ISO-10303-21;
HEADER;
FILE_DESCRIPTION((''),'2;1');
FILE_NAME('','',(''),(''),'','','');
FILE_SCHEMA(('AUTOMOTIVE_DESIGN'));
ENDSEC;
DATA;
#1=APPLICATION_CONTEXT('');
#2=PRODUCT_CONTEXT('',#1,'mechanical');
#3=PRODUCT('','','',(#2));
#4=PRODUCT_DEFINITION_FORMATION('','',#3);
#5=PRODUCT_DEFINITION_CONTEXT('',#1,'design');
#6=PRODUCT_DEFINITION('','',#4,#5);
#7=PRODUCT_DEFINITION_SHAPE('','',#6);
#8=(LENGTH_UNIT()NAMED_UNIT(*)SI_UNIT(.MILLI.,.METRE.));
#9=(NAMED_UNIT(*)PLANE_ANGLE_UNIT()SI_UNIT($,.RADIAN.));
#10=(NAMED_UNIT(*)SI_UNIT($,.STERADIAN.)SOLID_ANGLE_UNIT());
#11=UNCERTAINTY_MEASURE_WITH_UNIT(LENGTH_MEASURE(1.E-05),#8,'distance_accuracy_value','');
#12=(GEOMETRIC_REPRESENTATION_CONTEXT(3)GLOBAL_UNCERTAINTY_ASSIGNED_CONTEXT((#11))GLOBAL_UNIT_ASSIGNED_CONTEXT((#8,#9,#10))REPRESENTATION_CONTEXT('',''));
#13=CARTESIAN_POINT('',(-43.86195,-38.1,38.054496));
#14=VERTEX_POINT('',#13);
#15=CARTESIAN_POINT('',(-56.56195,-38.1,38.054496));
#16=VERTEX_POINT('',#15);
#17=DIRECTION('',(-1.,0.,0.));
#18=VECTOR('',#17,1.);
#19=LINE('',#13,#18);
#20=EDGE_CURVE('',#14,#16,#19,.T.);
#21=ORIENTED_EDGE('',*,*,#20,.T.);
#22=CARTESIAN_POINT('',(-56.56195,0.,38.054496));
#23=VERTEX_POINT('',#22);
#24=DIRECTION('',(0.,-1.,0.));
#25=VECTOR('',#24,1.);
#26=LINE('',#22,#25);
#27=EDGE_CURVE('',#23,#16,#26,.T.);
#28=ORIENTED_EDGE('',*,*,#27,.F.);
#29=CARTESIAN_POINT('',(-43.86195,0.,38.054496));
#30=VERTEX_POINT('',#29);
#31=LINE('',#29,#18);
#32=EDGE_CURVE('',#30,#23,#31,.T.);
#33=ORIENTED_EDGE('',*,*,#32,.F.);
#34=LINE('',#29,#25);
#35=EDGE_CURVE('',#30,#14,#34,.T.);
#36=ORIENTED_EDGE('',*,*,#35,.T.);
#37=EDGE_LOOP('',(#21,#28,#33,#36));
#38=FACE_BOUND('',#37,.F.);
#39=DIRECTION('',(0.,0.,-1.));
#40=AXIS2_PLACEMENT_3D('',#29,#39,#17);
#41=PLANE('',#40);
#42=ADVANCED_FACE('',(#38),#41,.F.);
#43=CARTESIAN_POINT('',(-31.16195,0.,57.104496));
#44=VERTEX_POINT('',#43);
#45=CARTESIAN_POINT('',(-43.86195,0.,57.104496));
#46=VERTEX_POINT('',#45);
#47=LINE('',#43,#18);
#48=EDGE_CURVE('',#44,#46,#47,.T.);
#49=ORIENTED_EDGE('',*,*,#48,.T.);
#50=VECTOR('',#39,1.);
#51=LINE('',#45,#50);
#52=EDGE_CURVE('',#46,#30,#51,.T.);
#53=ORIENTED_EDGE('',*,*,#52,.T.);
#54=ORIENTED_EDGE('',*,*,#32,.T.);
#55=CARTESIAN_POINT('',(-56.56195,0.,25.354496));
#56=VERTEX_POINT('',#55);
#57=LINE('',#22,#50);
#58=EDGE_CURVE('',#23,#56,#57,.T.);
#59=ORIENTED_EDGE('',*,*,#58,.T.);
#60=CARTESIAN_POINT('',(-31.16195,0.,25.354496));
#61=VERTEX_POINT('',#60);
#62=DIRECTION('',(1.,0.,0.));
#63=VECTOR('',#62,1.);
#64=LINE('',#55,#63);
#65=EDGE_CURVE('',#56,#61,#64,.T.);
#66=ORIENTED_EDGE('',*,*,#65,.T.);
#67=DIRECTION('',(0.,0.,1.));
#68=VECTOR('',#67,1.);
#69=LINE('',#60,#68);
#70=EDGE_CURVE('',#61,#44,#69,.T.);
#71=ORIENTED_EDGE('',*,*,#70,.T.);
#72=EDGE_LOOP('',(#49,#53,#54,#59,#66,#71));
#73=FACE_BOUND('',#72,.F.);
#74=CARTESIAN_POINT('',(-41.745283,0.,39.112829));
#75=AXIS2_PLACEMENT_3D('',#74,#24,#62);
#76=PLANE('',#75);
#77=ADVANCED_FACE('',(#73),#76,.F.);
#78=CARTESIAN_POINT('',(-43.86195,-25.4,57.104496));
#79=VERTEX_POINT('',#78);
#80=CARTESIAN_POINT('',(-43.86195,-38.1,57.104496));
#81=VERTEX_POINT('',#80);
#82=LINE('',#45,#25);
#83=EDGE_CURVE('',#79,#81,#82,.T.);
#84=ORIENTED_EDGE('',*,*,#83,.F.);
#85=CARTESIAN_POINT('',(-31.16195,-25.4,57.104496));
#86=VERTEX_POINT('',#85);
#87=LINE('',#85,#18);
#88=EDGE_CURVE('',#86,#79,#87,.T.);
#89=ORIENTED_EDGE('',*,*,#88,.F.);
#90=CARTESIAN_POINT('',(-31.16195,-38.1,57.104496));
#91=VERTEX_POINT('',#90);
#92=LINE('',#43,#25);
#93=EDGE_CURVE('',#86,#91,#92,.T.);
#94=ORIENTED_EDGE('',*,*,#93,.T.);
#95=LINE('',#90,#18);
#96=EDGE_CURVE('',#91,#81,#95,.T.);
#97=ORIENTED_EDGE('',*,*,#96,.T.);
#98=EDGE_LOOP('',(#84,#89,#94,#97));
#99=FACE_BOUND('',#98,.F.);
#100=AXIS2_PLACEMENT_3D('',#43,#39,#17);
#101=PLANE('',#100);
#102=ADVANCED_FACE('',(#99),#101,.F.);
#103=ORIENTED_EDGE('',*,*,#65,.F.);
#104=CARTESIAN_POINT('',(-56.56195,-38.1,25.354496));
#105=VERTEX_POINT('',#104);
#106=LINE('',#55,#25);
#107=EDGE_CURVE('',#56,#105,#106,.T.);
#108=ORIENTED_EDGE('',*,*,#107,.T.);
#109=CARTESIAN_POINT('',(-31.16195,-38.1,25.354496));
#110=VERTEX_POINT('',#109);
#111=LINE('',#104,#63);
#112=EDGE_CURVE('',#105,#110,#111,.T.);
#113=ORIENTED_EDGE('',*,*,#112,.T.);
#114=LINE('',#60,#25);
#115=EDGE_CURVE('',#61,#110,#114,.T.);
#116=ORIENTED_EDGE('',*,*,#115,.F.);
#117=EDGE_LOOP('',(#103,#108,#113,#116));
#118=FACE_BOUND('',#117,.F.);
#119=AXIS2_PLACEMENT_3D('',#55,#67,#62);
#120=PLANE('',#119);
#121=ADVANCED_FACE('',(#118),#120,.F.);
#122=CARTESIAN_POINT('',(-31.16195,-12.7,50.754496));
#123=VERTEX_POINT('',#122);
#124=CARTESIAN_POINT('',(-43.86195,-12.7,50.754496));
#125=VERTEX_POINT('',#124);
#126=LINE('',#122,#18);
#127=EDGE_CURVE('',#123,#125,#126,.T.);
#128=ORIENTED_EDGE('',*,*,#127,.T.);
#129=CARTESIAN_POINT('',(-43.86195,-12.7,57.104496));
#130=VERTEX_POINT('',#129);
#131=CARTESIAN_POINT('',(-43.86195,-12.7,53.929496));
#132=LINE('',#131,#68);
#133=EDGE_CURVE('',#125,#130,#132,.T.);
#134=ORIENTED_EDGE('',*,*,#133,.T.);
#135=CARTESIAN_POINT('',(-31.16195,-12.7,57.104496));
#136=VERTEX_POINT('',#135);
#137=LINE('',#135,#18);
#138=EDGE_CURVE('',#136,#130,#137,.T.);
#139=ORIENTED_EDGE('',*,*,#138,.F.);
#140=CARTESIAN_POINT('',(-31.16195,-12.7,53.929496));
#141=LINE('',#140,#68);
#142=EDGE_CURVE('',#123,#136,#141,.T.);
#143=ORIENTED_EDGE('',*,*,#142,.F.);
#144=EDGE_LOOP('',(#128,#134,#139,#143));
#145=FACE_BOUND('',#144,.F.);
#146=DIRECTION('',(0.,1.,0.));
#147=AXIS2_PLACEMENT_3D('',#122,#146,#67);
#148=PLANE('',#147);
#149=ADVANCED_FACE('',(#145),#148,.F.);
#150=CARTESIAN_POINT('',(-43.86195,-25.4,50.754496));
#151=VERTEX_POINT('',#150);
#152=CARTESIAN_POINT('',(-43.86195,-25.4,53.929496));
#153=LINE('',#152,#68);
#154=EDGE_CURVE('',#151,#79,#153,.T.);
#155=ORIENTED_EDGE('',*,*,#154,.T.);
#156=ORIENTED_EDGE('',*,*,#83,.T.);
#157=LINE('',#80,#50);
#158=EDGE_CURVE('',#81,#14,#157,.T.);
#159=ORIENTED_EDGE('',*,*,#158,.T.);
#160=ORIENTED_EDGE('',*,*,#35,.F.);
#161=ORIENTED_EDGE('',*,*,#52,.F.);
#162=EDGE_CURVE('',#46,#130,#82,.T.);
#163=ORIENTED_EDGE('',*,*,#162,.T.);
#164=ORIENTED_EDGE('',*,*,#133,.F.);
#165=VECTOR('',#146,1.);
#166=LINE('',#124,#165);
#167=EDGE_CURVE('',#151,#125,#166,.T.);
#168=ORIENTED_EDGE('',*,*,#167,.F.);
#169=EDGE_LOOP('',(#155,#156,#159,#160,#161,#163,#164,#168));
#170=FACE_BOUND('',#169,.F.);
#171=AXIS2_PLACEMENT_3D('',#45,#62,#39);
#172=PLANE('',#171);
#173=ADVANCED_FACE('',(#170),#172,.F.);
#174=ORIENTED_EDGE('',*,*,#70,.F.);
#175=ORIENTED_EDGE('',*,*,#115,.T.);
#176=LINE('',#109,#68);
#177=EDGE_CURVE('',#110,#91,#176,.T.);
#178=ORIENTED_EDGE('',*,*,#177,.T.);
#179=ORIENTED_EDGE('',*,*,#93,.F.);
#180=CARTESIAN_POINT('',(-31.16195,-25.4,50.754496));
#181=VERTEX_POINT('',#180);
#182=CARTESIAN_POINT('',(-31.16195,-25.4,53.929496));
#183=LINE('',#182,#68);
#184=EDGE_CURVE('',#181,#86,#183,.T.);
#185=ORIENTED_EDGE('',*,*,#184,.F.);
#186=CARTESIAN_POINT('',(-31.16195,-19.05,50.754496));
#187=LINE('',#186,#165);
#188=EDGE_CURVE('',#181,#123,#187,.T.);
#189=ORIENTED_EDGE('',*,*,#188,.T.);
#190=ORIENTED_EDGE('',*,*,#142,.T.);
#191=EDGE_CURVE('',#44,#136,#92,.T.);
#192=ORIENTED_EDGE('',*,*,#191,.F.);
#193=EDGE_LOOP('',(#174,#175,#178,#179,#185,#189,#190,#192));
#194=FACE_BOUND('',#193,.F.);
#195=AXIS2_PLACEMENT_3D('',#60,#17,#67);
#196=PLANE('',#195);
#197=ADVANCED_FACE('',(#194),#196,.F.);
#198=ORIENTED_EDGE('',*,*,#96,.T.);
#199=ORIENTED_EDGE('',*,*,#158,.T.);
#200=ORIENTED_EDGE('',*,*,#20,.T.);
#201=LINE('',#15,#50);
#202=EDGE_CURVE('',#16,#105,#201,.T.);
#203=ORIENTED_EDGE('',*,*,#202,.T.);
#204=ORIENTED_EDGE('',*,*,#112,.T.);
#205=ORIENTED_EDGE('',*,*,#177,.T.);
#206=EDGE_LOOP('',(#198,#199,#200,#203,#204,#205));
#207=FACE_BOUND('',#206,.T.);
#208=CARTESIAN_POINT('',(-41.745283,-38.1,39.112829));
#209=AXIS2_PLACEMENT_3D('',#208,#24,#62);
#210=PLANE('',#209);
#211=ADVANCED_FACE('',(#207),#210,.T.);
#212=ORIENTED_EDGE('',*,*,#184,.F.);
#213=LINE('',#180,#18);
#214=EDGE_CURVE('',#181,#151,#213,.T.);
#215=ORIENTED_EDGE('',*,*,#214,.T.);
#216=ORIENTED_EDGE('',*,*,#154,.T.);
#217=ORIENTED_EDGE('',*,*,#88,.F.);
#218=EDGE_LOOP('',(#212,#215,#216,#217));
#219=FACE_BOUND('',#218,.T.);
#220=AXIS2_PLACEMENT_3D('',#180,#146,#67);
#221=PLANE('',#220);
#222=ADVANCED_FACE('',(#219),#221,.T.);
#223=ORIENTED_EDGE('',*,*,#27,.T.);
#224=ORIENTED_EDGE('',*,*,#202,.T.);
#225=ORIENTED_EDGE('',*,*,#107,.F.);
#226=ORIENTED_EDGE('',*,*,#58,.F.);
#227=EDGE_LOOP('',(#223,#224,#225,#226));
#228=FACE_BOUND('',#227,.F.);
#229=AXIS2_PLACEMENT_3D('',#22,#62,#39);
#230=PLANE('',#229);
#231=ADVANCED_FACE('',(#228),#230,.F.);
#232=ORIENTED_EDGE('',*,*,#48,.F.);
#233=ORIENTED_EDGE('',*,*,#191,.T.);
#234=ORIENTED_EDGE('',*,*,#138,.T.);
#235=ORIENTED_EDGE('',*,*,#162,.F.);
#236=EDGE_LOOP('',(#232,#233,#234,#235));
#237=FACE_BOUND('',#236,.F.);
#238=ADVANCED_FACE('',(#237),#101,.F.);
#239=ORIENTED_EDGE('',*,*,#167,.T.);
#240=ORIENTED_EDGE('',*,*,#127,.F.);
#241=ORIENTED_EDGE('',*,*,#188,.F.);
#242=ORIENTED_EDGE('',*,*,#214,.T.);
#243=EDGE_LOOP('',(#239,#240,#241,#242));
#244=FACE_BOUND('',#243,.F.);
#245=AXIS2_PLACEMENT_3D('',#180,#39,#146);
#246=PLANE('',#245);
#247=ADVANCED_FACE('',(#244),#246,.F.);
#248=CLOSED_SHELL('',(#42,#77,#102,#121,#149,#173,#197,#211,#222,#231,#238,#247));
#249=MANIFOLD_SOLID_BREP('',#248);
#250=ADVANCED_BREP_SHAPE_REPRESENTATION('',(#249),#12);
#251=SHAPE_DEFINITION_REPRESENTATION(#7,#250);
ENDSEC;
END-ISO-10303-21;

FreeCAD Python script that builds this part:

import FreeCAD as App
import Part
import Sketcher
Q = App.Units.Quantity

doc = App.newDocument("Part")
body = doc.addObject("PartDesign::Body", "Body")

# Sketch on XZ plane
sketch1 = doc.addObject("Sketcher::SketchObject", "Sketch")
body.addObject(sketch1)
sketch1.AttachmentSupport = (doc.XZ_Plane, [""])
sketch1.MapMode = "FlatFace"
sketch1.addGeometry(Part.LineSegment(App.Vector(-31.16195, 57.104496, 0), App.Vector(-43.86195, 57.104496, 0)), False)
sketch1.addGeometry(Part.LineSegment(App.Vector(-43.86195, 57.104496, 0), App.Vector(-43.86195, 38.054496, 0)), False)
sketch1.addGeometry(Part.LineSegment(App.Vector(-43.86195, 38.054496, 0), App.Vector(-56.56195, 38.054496, 0)), False)
sketch1.addGeometry(Part.LineSegment(App.Vector(-56.56195, 38.054496, 0), App.Vector(-56.56195, 25.354496, 0)), False)
sketch1.addGeometry(Part.LineSegment(App.Vector(-56.56195, 25.354496, 0), App.Vector(-31.16195, 25.354496, 0)), False)
sketch1.addGeometry(Part.LineSegment(App.Vector(-31.16195, 25.354496, 0), App.Vector(-31.16195, 57.104496, 0)), False)
sketch1.addConstraint(Sketcher.Constraint("Coincident", 0, 2, 1, 1))
sketch1.addConstraint(Sketcher.Constraint("Coincident", 1, 2, 2, 1))
sketch1.addConstraint(Sketcher.Constraint("Coincident", 2, 2, 3, 1))
sketch1.addConstraint(Sketcher.Constraint("Coincident", 3, 2, 4, 1))
sketch1.addConstraint(Sketcher.Constraint("Coincident", 4, 2, 5, 1))
sketch1.addConstraint(Sketcher.Constraint("Coincident", 5, 2, 0, 1))
sketch1.addConstraint(Sketcher.Constraint("Horizontal", 0))
sketch1.addConstraint(Sketcher.Constraint("Vertical", 1))
sketch1.addConstraint(Sketcher.Constraint("Horizontal", 2))
sketch1.addConstraint(Sketcher.Constraint("Vertical", 3))
sketch1.addConstraint(Sketcher.Constraint("Horizontal", 4))
sketch1.addConstraint(Sketcher.Constraint("Vertical", 5))
sketch1.addConstraint(Sketcher.Constraint("Equal", 0, 2))
sketch1.addConstraint(Sketcher.Constraint("Equal", 2, 3))
sketch1.addConstraint(Sketcher.Constraint("DistanceX", 4, 1, 4, 2, Q("1 in")))
sketch1.addConstraint(Sketcher.Constraint("DistanceY", 1, 2, 1, 1, Q("0.75 in")))
sketch1.addConstraint(Sketcher.Constraint("DistanceX", 0, 2, -1, 1, 43.86195))
sketch1.addConstraint(Sketcher.Constraint("DistanceY", -1, 1, 0, 2, 57.104496))
pad1 = doc.addObject("PartDesign::Pad", "Pad")
body.addObject(pad1)
pad1.Profile = sketch1
pad1.Length = Q("1.5 in")

# Sketch on YZ plane
sketch2 = doc.addObject("Sketcher::SketchObject", "Sketch001")
body.addObject(sketch2)
sketch2.AttachmentSupport = (doc.YZ_Plane, [""])
sketch2.MapMode = "FlatFace"
sketch2.AttachmentOffset = App.Placement(App.Vector(0, 0, -31.16195), App.Rotation())
sketch2.addGeometry(Part.LineSegment(App.Vector(-25.4, 57.104496, 0), App.Vector(-25.4, 50.754496, 0)), False)
sketch2.addGeometry(Part.LineSegment(App.Vector(-25.4, 50.754496, 0), App.Vector(-12.7, 50.754496, 0)), False)
sketch2.addGeometry(Part.LineSegment(App.Vector(-12.7, 50.754496, 0), App.Vector(-12.7, 57.104496, 0)), False)
sketch2.addGeometry(Part.LineSegment(App.Vector(-12.7, 57.104496, 0), App.Vector(-25.4, 57.104496, 0)), False)
sketch2.addConstraint(Sketcher.Constraint("Coincident", 0, 2, 1, 1))
sketch2.addConstraint(Sketcher.Constraint("Coincident", 1, 2, 2, 1))
sketch2.addConstraint(Sketcher.Constraint("Coincident", 2, 2, 3, 1))
sketch2.addConstraint(Sketcher.Constraint("Coincident", 3, 2, 0, 1))
sketch2.addConstraint(Sketcher.Constraint("Vertical", 0))
sketch2.addConstraint(Sketcher.Constraint("Horizontal", 1))
sketch2.addConstraint(Sketcher.Constraint("Vertical", 2))
sketch2.addConstraint(Sketcher.Constraint("Horizontal", 3))
sketch2.addConstraint(Sketcher.Constraint("DistanceX", 1, 1, 1, 2, Q("0.5 in")))
sketch2.addConstraint(Sketcher.Constraint("DistanceX", 0, 2, -1, 1, Q("1 in")))
sketch2.addConstraint(Sketcher.Constraint("DistanceY", 0, 2, 0, 1, Q("0.25 in")))
sketch2.addConstraint(Sketcher.Constraint("DistanceY", -1, 1, 0, 2, 50.754496))
pocket1 = doc.addObject("PartDesign::Pocket", "Pocket")
body.addObject(pocket1)
pocket1.Profile = sketch2
pocket1.Length = Q("1 in")

doc.recompute()
